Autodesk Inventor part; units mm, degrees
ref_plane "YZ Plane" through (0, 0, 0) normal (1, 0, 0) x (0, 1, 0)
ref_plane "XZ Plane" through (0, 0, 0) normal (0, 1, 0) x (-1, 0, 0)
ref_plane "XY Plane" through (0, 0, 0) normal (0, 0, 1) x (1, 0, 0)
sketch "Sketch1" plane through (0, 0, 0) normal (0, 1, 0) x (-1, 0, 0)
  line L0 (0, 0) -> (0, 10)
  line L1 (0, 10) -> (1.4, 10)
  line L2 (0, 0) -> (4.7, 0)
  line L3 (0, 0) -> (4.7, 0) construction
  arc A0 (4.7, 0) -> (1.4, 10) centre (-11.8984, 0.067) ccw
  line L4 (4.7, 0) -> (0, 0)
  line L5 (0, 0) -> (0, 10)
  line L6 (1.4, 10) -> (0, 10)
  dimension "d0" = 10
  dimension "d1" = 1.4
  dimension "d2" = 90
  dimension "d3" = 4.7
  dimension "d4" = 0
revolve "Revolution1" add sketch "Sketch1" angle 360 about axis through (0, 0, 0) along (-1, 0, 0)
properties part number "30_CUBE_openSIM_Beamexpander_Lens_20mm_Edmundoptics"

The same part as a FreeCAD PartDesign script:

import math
import FreeCAD as App
import Part
import Sketcher
from FreeCAD import Vector
Q = App.Units.Quantity

doc = App.newDocument("Part")
params = doc.addObject("Spreadsheet::Sheet", "Params")
for row, (alias, value) in enumerate([
    ("sketch1_height", "10 mm"),
    ("sketch1_width", "4.7 mm"),
    ("sketch1_width2", "1.4 mm"),
    ("revolution_angle", "360 deg"),
], start=1):
    params.set(f"A{row}", alias)
    params.set(f"B{row}", "=" + value)
    params.setAlias(f"B{row}", alias)

body = doc.addObject("PartDesign::Body", "Body")

# Sketch on XZ plane
sketch1 = doc.addObject("Sketcher::SketchObject", "Sketch")
body.addObject(sketch1)
sketch1.AttachmentSupport = (doc.XZ_Plane, [""])
sketch1.MapMode = "FlatFace"
sketch1.addGeometry(Part.LineSegment(Vector(0, 10, 0), Vector(0, 0, 0)), False)
sketch1.addGeometry(Part.LineSegment(Vector(0, 0, 0), Vector(-4.7, 0, 0)), False)
sketch1.addGeometry(Part.ArcOfCircle(Part.Circle(Vector(11.9, 0.1, 0), Vector(0, 0, 1), 16.6), math.radians(143), math.radians(180)), False)
sketch1.addGeometry(Part.LineSegment(Vector(-1.4, 10, 0), Vector(0, 10, 0)), False)
sketch1.addConstraint(Sketcher.Constraint("Coincident", 0, 2, 1, 1))
sketch1.addConstraint(Sketcher.Constraint("Coincident", 1, 2, 2, 2))
sketch1.addConstraint(Sketcher.Constraint("Coincident", 2, 1, 3, 1))
sketch1.addConstraint(Sketcher.Constraint("Coincident", 3, 2, 0, 1))
sketch1.addConstraint(Sketcher.Constraint("Vertical", 0))
sketch1.addConstraint(Sketcher.Constraint("Horizontal", 1))
sketch1.addConstraint(Sketcher.Constraint("Horizontal", 3))
sketch1.addConstraint(Sketcher.Constraint("Coincident", 0, 2, -1, 1))
sketch1.addConstraint(Sketcher.Constraint("DistanceY", 0, 2, 0, 1, Q("10 mm")))
sketch1.addConstraint(Sketcher.Constraint("DistanceX", 1, 2, 1, 1, Q("4.7 mm")))
sketch1.addConstraint(Sketcher.Constraint("DistanceX", 3, 1, 3, 2, Q("1.4 mm")))
sketch1.addConstraint(Sketcher.Constraint("Radius", 2, Q("16.5985 mm")))
sketch1.setExpression("Constraints[8]", "Params.sketch1_height")
sketch1.setExpression("Constraints[9]", "Params.sketch1_width")
sketch1.setExpression("Constraints[10]", "Params.sketch1_width2")
revolution = doc.addObject("PartDesign::Revolution", "Revolution")
body.addObject(revolution)
revolution.Profile = sketch1
revolution.ReferenceAxis = (sketch1, ["H_Axis"])
revolution.setExpression("Angle", "Params.revolution_angle")

doc.recompute()
